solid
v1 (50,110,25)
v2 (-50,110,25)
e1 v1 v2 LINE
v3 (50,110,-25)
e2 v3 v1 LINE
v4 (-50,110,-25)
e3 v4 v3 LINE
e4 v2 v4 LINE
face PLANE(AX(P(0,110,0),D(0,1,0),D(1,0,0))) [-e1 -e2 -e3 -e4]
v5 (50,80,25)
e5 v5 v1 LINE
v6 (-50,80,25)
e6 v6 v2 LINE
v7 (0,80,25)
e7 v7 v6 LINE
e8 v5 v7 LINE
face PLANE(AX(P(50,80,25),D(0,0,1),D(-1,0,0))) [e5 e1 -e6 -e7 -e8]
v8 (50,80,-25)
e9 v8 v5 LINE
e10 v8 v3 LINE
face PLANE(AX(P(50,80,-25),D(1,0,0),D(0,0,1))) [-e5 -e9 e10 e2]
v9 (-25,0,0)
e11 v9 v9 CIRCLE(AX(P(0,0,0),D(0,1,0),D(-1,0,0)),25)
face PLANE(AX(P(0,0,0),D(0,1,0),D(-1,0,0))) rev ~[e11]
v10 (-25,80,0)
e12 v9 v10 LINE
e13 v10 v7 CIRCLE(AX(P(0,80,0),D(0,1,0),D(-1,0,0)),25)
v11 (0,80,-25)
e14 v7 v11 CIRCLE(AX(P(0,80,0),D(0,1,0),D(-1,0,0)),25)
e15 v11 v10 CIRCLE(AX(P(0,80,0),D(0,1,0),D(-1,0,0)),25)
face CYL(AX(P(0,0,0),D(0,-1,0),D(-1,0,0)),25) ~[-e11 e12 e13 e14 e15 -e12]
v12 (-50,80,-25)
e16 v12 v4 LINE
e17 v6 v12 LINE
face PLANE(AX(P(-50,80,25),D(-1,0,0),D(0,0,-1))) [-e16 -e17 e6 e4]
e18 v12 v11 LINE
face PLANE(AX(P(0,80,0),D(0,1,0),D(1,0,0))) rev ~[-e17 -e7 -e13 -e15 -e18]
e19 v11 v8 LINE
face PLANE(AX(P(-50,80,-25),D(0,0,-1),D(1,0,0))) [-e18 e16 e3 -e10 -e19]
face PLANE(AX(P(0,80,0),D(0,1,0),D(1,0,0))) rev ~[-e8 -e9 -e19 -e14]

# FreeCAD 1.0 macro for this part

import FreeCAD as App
import Part
import Sketcher
Q = App.Units.Quantity

doc = App.newDocument("Part")
body = doc.addObject("PartDesign::Body", "Body")

# Sketch on XZ plane
sketch1 = body.newObject("Sketcher::SketchObject", "Sketch")
sketch1.AttachmentSupport = (doc.getObject("XZ_Plane"), [""])
sketch1.MapMode = "FlatFace"
sketch1.addGeometry(Part.Circle(App.Vector(0, 0, 0), App.Vector(0, 0, 1), 25), False)
sketch1.addConstraint([
    Sketcher.Constraint("Coincident", 0, 3, -1, 1),
    Sketcher.Constraint("Diameter", 0, Q("1.9685 in")),
])
pad1 = body.newObject("PartDesign::Pad", "Pad")
pad1.Profile = sketch1
pad1.Length = Q("3.1496063 in")
pad1.Reversed = True

# Sketch on XZ plane
sketch2 = body.newObject("Sketcher::SketchObject", "Sketch001")
sketch2.AttachmentSupport = (doc.getObject("XZ_Plane"), [""])
sketch2.MapMode = "FlatFace"
sketch2.AttachmentOffset = App.Placement(App.Vector(0, 0, -3.1496063 * 25.4), App.Rotation())
sketch2.addGeometry([
    Part.LineSegment(App.Vector(-50, 25, 0), App.Vector(50, 25, 0)),
    Part.LineSegment(App.Vector(50, 25, 0), App.Vector(50, -25, 0)),
    Part.LineSegment(App.Vector(50, -25, 0), App.Vector(-50, -25, 0)),
    Part.LineSegment(App.Vector(-50, -25, 0), App.Vector(-50, 25, 0)),
], False)
sketch2.addConstraint([
    Sketcher.Constraint("Coincident", 0, 2, 1, 1),
    Sketcher.Constraint("Coincident", 1, 2, 2, 1),
    Sketcher.Constraint("Coincident", 2, 2, 3, 1),
    Sketcher.Constraint("Coincident", 3, 2, 0, 1),
    Sketcher.Constraint("Horizontal", 0),
    Sketcher.Constraint("Vertical", 1),
    Sketcher.Constraint("Horizontal", 2),
    Sketcher.Constraint("Vertical", 3),
    Sketcher.Constraint("Symmetric", 0, 2, 2, 2, -1, 1),
    Sketcher.Constraint("DistanceX", 0, 1, 0, 2, Q("3.937 in")),
    Sketcher.Constraint("DistanceY", 1, 2, 1, 1, Q("1.9685 in")),
])
pad2 = body.newObject("PartDesign::Pad", "Pad001")
pad2.Profile = sketch2
pad2.Length = Q("1.1811024 in")
pad2.Reversed = True

doc.recompute()
